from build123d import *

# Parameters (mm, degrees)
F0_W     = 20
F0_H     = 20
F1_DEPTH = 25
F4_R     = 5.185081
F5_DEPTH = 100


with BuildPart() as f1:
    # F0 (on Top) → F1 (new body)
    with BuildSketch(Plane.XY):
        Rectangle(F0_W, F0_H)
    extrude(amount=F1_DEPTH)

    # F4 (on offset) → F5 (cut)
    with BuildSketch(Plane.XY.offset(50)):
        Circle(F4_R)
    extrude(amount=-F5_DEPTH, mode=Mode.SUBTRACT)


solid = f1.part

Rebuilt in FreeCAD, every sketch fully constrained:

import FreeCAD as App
import Part
import Sketcher
from FreeCAD import Vector

doc = App.newDocument("Part")
params = doc.addObject("Spreadsheet::Sheet", "Params")
for row, (alias, value) in enumerate([
    ("sketch1_width", "20 mm"),
    ("pad1_length", "25 mm"),
    ("pocket1_length", "100 mm"),
], start=1):
    params.set(f"A{row}", alias)
    params.set(f"B{row}", "=" + value)
    params.setAlias(f"B{row}", alias)

body = doc.addObject("PartDesign::Body", "Body")

# Sketch on XY plane
sketch1 = body.newObject("Sketcher::SketchObject", "Sketch")
sketch1.AttachmentSupport = (doc.getObject("XY_Plane"), [""])
sketch1.MapMode = "FlatFace"
sketch1.addGeometry([
    Part.LineSegment(Vector(-10, 10, 0), Vector(-10, -10, 0)),
    Part.LineSegment(Vector(-10, -10, 0), Vector(10, -10, 0)),
    Part.LineSegment(Vector(10, -10, 0), Vector(10, 10, 0)),
    Part.LineSegment(Vector(10, 10, 0), Vector(-10, 10, 0)),
], False)
sketch1.addConstraint([
    Sketcher.Constraint("Coincident", 0, 2, 1, 1),
    Sketcher.Constraint("Coincident", 1, 2, 2, 1),
    Sketcher.Constraint("Coincident", 2, 2, 3, 1),
    Sketcher.Constraint("Coincident", 3, 2, 0, 1),
    Sketcher.Constraint("Vertical", 0),
    Sketcher.Constraint("Horizontal", 1),
    Sketcher.Constraint("Vertical", 2),
    Sketcher.Constraint("Horizontal", 3),
    Sketcher.Constraint("Symmetric", 0, 2, 2, 2, -1, 1),
    Sketcher.Constraint("Equal", 3, 0),
    Sketcher.Constraint("DistanceX", 1, 1, 1, 2, 20.0),
])
sketch1.setExpression("Constraints[10]", "Params.sketch1_width")
pad1 = body.newObject("PartDesign::Pad", "Pad")
pad1.Profile = sketch1
pad1.setExpression("Length", "Params.pad1_length")

# Sketch on XY plane
sketch2 = body.newObject("Sketcher::SketchObject", "Sketch001")
sketch2.AttachmentSupport = (doc.getObject("XY_Plane"), [""])
sketch2.MapMode = "FlatFace"
sketch2.AttachmentOffset = App.Placement(Vector(0, 0, 50), App.Rotation())
sketch2.addGeometry(Part.Circle(Vector(0, 0, 0), Vector(0, 0, 1), 5), False)
sketch2.addConstraint([
    Sketcher.Constraint("Coincident", 0, 3, -1, 1),
    Sketcher.Constraint("Diameter", 0, 10.370162),
])
pocket1 = body.newObject("PartDesign::Pocket", "Pocket")
pocket1.Profile = sketch2
pocket1.setExpression("Length", "Params.pocket1_length")

doc.recompute()
